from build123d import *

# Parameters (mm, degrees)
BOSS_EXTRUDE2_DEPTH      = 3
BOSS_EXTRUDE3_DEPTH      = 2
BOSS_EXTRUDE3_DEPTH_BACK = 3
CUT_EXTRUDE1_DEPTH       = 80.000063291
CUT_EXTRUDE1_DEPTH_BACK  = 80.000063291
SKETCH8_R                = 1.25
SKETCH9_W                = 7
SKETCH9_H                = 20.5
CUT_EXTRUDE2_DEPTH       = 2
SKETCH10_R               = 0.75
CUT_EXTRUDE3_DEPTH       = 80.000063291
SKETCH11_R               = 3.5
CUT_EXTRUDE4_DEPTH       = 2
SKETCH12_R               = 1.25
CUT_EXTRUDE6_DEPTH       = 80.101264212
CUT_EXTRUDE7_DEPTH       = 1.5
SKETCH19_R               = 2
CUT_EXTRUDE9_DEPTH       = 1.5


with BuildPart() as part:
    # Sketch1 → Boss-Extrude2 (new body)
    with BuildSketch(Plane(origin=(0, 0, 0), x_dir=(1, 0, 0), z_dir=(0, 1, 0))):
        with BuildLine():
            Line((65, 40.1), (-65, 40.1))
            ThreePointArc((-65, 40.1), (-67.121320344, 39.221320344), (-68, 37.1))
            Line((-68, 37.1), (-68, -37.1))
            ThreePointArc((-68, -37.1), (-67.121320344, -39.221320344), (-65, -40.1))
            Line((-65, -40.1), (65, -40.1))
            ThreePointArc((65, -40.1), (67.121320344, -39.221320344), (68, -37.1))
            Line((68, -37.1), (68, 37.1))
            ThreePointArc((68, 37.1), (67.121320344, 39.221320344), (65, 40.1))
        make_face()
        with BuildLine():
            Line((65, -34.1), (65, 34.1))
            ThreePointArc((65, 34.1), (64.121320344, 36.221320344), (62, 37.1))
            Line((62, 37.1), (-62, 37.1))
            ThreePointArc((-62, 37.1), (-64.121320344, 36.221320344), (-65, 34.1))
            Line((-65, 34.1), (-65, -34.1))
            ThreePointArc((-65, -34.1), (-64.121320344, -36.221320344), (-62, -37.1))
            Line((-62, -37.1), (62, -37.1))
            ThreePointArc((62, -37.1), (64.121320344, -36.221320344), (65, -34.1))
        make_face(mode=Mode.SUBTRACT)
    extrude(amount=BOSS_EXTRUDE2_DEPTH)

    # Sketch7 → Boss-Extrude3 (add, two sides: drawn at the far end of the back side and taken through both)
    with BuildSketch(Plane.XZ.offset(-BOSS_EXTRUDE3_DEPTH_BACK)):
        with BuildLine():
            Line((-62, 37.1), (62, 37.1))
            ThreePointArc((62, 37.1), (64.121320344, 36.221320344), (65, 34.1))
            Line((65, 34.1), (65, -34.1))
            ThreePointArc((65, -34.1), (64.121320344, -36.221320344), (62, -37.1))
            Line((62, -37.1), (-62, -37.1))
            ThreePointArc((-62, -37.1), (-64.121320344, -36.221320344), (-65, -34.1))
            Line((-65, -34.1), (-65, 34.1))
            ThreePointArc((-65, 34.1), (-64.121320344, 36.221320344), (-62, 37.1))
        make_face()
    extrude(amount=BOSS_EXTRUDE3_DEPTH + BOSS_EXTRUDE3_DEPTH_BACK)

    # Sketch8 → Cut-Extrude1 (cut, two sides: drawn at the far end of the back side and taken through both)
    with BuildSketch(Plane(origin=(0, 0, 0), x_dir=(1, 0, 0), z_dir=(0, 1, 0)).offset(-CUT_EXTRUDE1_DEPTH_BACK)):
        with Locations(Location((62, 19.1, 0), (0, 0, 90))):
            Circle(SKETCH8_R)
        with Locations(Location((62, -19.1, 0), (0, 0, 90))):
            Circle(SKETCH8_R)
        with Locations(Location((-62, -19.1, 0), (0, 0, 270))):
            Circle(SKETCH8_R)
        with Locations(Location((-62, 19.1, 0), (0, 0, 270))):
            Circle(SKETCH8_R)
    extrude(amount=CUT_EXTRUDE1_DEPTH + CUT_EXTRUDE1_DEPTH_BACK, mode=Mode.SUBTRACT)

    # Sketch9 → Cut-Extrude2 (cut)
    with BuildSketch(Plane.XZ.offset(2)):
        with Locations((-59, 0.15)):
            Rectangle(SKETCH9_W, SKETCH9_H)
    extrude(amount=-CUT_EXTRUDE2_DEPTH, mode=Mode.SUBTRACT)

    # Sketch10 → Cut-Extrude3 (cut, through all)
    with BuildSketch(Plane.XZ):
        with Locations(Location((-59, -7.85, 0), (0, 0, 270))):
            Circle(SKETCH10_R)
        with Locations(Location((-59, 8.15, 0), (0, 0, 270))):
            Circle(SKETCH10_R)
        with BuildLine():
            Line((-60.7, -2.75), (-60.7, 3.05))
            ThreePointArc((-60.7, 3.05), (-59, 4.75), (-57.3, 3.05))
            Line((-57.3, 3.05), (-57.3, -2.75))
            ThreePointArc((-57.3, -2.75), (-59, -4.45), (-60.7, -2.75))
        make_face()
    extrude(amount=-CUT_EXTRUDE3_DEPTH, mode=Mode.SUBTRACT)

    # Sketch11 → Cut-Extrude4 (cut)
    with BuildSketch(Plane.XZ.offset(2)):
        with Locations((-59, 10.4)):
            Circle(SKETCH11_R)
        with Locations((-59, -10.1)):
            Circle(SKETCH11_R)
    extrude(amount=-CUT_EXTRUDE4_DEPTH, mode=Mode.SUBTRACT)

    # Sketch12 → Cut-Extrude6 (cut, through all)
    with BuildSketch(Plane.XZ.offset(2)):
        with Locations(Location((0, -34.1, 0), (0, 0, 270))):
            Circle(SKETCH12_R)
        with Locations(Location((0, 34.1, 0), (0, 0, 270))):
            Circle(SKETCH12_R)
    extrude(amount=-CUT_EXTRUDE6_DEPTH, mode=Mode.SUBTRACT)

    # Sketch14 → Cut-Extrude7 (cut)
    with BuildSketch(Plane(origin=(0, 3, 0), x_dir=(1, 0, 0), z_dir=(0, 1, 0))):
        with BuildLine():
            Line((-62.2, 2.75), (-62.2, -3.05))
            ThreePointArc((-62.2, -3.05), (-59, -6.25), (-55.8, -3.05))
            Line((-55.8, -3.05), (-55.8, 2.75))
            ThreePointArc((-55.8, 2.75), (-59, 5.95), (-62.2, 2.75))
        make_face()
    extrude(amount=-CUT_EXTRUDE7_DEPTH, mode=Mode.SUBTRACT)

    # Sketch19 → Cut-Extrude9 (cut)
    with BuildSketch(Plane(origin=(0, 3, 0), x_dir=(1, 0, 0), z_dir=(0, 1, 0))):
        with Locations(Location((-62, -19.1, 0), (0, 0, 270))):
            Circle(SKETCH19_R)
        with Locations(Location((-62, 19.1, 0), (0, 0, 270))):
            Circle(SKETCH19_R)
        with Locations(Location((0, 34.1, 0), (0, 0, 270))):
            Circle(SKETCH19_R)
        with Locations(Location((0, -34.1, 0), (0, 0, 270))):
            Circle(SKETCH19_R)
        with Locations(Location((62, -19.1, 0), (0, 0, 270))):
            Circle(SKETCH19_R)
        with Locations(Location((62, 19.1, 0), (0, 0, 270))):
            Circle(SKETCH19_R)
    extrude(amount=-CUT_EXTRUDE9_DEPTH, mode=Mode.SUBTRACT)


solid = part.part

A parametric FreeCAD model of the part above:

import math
import FreeCAD as App
import Part
import Sketcher

V = App.Vector


def add_polygon(sketch, points):
    """Adds a closed chain of lines whose ends are joined by coincident constraints."""
    first, n = sketch.GeometryCount, len(points)
    for a, b in zip(points, points[1:] + points[:1]):
        sketch.addGeometry(Part.LineSegment(App.Vector(*a, 0), App.Vector(*b, 0)), False)
    for i in range(n):
        sketch.addConstraint(Sketcher.Constraint("Coincident", first + i, 2, first + (i + 1) % n, 1))

doc = App.newDocument("Part")
params = doc.addObject("Spreadsheet::Sheet", "Params")
for row, (alias, value) in enumerate([
    ("sketch1_radius", "3 mm"),
    ("sketch1_width", "130 mm"),
    ("sketch1_height", "74.2 mm"),
    ("pad1_length", "3 mm"),
    ("sketch2_radius", "3 mm"),
    ("sketch2_width", "124 mm"),
    ("sketch2_height", "68.2 mm"),
    ("pad2_length", "2 mm"),
    ("pad2_length2", "3 mm"),
    ("sketch3_diameter", "2.5 mm"),
    ("sketch4_width", "7 mm"),
    ("sketch4_height", "20.5 mm"),
    ("pocket2_length", "2 mm"),
    ("sketch5_diameter", "1.5 mm"),
    ("sketch5_radius", "1.7 mm"),
    ("sketch5_height", "5.8 mm"),
    ("sketch6_diameter", "7 mm"),
    ("pocket4_length", "2 mm"),
    ("sketch7_diameter", "2.5 mm"),
    ("sketch8_radius", "3.2 mm"),
    ("sketch8_height", "5.8 mm"),
    ("pocket6_length", "1.5 mm"),
    ("sketch9_diameter", "4 mm"),
    ("pocket7_length", "1.5 mm"),
], start=1):
    params.set(f"A{row}", alias)
    params.set(f"B{row}", "=" + value)
    params.setAlias(f"B{row}", alias)

body = doc.addObject("PartDesign::Body", "Body")

# Sketch on XZ plane
sketch1 = body.newObject("Sketcher::SketchObject", "Sketch")
sketch1.AttachmentSupport = (doc.getObject("XZ_Plane"), [""])
sketch1.MapMode = "FlatFace"
sketch1.addGeometry([
    Part.LineSegment(V(65, -40.1, 0), V(-65, -40.1, 0)),  # 0
    Part.ArcOfCircle(Part.Circle(V(-65, -37.1, 0), V(0, 0, 1), 3), math.radians(180), math.radians(270)),  # 1
    Part.LineSegment(V(-68, -37.1, 0), V(-68, 37.1, 0)),  # 2
    Part.ArcOfCircle(Part.Circle(V(-65, 37.1, 0), V(0, 0, 1), 3), math.radians(90), math.radians(180)),  # 3
    Part.LineSegment(V(-65, 40.1, 0), V(65, 40.1, 0)),  # 4
    Part.ArcOfCircle(Part.Circle(V(65, 37.1, 0), V(0, 0, 1), 3), math.radians(0), math.radians(90)),  # 5
    Part.LineSegment(V(68, 37.1, 0), V(68, -37.1, 0)),  # 6
    Part.ArcOfCircle(Part.Circle(V(65, -37.1, 0), V(0, 0, 1), 3), math.radians(-90), math.radians(0)),  # 7
    Part.LineSegment(V(65, -34.1, 0), V(65, 34.1, 0)),  # 8
    Part.ArcOfCircle(Part.Circle(V(62, 34.1, 0), V(0, 0, 1), 3), math.radians(0), math.radians(90)),  # 9
    Part.LineSegment(V(62, 37.1, 0), V(-62, 37.1, 0)),  # 10
    Part.ArcOfCircle(Part.Circle(V(-62, 34.1, 0), V(0, 0, 1), 3), math.radians(90), math.radians(180)),  # 11
    Part.LineSegment(V(-65, 34.1, 0), V(-65, -34.1, 0)),  # 12
    Part.ArcOfCircle(Part.Circle(V(-62, -34.1, 0), V(0, 0, 1), 3), math.radians(180), math.radians(270)),  # 13
    Part.LineSegment(V(-62, -37.1, 0), V(62, -37.1, 0)),  # 14
    Part.ArcOfCircle(Part.Circle(V(62, -34.1, 0), V(0, 0, 1), 3), math.radians(-90), math.radians(0)),  # 15
], False)
sketch1.addConstraint([
    Sketcher.Constraint("Tangent", 0, 2, 1, 2),
    Sketcher.Constraint("Tangent", 1, 1, 2, 1),
    Sketcher.Constraint("Tangent", 2, 2, 3, 2),
    Sketcher.Constraint("Tangent", 3, 1, 4, 1),
    Sketcher.Constraint("Tangent", 4, 2, 5, 2),
    Sketcher.Constraint("Tangent", 5, 1, 6, 1),
    Sketcher.Constraint("Tangent", 6, 2, 7, 2),
    Sketcher.Constraint("Tangent", 7, 1, 0, 1),
    Sketcher.Constraint("Tangent", 8, 2, 9, 1),
    Sketcher.Constraint("Tangent", 9, 2, 10, 1),
    Sketcher.Constraint("Tangent", 10, 2, 11, 1),
    Sketcher.Constraint("Tangent", 11, 2, 12, 1),
    Sketcher.Constraint("Tangent", 12, 2, 13, 1),
    Sketcher.Constraint("Tangent", 13, 2, 14, 1),
    Sketcher.Constraint("Tangent", 14, 2, 15, 1),
    Sketcher.Constraint("Tangent", 15, 2, 8, 1),
    Sketcher.Constraint("Horizontal", 0),
    Sketcher.Constraint("Vertical", 2),
    Sketcher.Constraint("Horizontal", 4),
    Sketcher.Constraint("Vertical", 6),
    Sketcher.Constraint("Vertical", 8),
    Sketcher.Constraint("Horizontal", 10),
    Sketcher.Constraint("Vertical", 12),
    Sketcher.Constraint("Horizontal", 14),
    Sketcher.Constraint("Equal", 1, 3),
    Sketcher.Constraint("Equal", 3, 5),
    Sketcher.Constraint("Equal", 5, 7),
    Sketcher.Constraint("Equal", 7, 9),
    Sketcher.Constraint("Equal", 9, 11),
    Sketcher.Constraint("Equal", 11, 13),
    Sketcher.Constraint("Equal", 13, 15),
    Sketcher.Constraint("Symmetric", 1, 3, 5, 3, -1, 1),
    Sketcher.Constraint("Symmetric", 9, 3, 13, 3, -1, 1),
    Sketcher.Constraint("Horizontal", 5, 1, 9, 2),
    Sketcher.Constraint("Vertical", 7, 1, 8, 2),
    Sketcher.Constraint("Radius", 1, 3.0),
    Sketcher.Constraint("DistanceX", 0, 2, 0, 1, 130.0),
    Sketcher.Constraint("DistanceY", 2, 1, 2, 2, 74.2),
])
sketch1.setExpression("Constraints[35]", "Params.sketch1_radius")
sketch1.setExpression("Constraints[36]", "Params.sketch1_width")
sketch1.setExpression("Constraints[37]", "Params.sketch1_height")
pad1 = body.newObject("PartDesign::Pad", "Pad")
pad1.Profile = sketch1
pad1.setExpression("Length", "Params.pad1_length")
pad1.Reversed = True

# Sketch on XZ plane
sketch2 = body.newObject("Sketcher::SketchObject", "Sketch001")
sketch2.AttachmentSupport = (doc.getObject("XZ_Plane"), [""])
sketch2.MapMode = "FlatFace"
sketch2.addGeometry([
    Part.LineSegment(V(62, 37.1, 0), V(-62, 37.1, 0)),  # 0
    Part.ArcOfCircle(Part.Circle(V(-62, 34.1, 0), V(0, 0, 1), 3), math.radians(90), math.radians(180)),  # 1
    Part.LineSegment(V(-65, 34.1, 0), V(-65, -34.1, 0)),  # 2
    Part.ArcOfCircle(Part.Circle(V(-62, -34.1, 0), V(0, 0, 1), 3), math.radians(180), math.radians(270)),  # 3
    Part.LineSegment(V(-62, -37.1, 0), V(62, -37.1, 0)),  # 4
    Part.ArcOfCircle(Part.Circle(V(62, -34.1, 0), V(0, 0, 1), 3), math.radians(-90), math.radians(0)),  # 5
    Part.LineSegment(V(65, -34.1, 0), V(65, 34.1, 0)),  # 6
    Part.ArcOfCircle(Part.Circle(V(62, 34.1, 0), V(0, 0, 1), 3), math.radians(0), math.radians(90)),  # 7
], False)
sketch2.addConstraint([
    Sketcher.Constraint("Tangent", 0, 2, 1, 1),
    Sketcher.Constraint("Tangent", 1, 2, 2, 1),
    Sketcher.Constraint("Tangent", 2, 2, 3, 1),
    Sketcher.Constraint("Tangent", 3, 2, 4, 1),
    Sketcher.Constraint("Tangent", 4, 2, 5, 1),
    Sketcher.Constraint("Tangent", 5, 2, 6, 1),
    Sketcher.Constraint("Tangent", 6, 2, 7, 1),
    Sketcher.Constraint("Tangent", 7, 2, 0, 1),
    Sketcher.Constraint("Horizontal", 0),
    Sketcher.Constraint("Vertical", 2),
    Sketcher.Constraint("Horizontal", 4),
    Sketcher.Constraint("Vertical", 6),
    Sketcher.Constraint("Equal", 1, 3),
    Sketcher.Constraint("Equal", 3, 5),
    Sketcher.Constraint("Equal", 5, 7),
    Sketcher.Constraint("Symmetric", 1, 3, 5, 3, -1, 1),
    Sketcher.Constraint("Radius", 1, 3.0),
    Sketcher.Constraint("DistanceX", 0, 2, 0, 1, 124.0),
    Sketcher.Constraint("DistanceY", 2, 2, 2, 1, 68.2),
])
sketch2.setExpression("Constraints[16]", "Params.sketch2_radius")
sketch2.setExpression("Constraints[17]", "Params.sketch2_width")
sketch2.setExpression("Constraints[18]", "Params.sketch2_height")
pad2 = body.newObject("PartDesign::Pad", "Pad001")
pad2.Profile = sketch2
pad2.Type = "TwoLengths"
pad2.setExpression("Length", "Params.pad2_length")
pad2.setExpression("Length2", "Params.pad2_length2")

# Sketch on XZ plane
sketch3 = body.newObject("Sketcher::SketchObject", "Sketch002")
sketch3.AttachmentSupport = (doc.getObject("XZ_Plane"), [""])
sketch3.MapMode = "FlatFace"
sketch3.addGeometry([
    Part.Circle(V(62, -19.1, 0), V(0, 0, 1), 1.2),
    Part.Circle(V(62, 19.1, 0), V(0, 0, 1), 1.2),
    Part.Circle(V(-62, 19.1, 0), V(0, 0, 1), 1.2),
    Part.Circle(V(-62, -19.1, 0), V(0, 0, 1), 1.2),
], False)
sketch3.addConstraint([
    Sketcher.Constraint("Equal", 0, 1),
    Sketcher.Constraint("Equal", 1, 2),
    Sketcher.Constraint("Equal", 2, 3),
    Sketcher.Constraint("Symmetric", 0, 3, 2, 3, -1, 1),
    Sketcher.Constraint("Symmetric", 1, 3, 3, 3, -1, 1),
    Sketcher.Constraint("Symmetric", 1, 3, 2, 3, -2),
    Sketcher.Constraint("Diameter", 0, 2.5),
    Sketcher.Constraint("DistanceX", -1, 1, 0, 3, 62.0),
    Sketcher.Constraint("DistanceY", 0, 3, -1, 1, 19.1),
])
sketch3.setExpression("Constraints[6]", "Params.sketch3_diameter")
pocket1 = body.newObject("PartDesign::Pocket", "Pocket")
pocket1.Profile = sketch3
pocket1.Type = "ThroughAll"
pocket1.Midplane = True

# Sketch on XZ plane
sketch4 = body.newObject("Sketcher::SketchObject", "Sketch003")
sketch4.AttachmentSupport = (doc.getObject("XZ_Plane"), [""])
sketch4.MapMode = "FlatFace"
sketch4.AttachmentOffset = App.Placement(V(0, 0, 2), App.Rotation())
add_polygon(sketch4, [(-62, 10), (-62, -10), (-56, -10), (-56, 10)])  # lines 0-3
sketch4.addConstraint([
    Sketcher.Constraint("Vertical", 0),
    Sketcher.Constraint("Horizontal", 1),
    Sketcher.Constraint("Vertical", 2),
    Sketcher.Constraint("Horizontal", 3),
    Sketcher.Constraint("DistanceX", 1, 1, 1, 2, 7.0),
    Sketcher.Constraint("DistanceY", 0, 2, 0, 1, 20.5),
    Sketcher.Constraint("DistanceX", 0, 2, -1, 1, 62.5),
    Sketcher.Constraint("DistanceY", 0, 2, -1, 1, 10.1),
])
sketch4.setExpression("Constraints[8]", "Params.sketch4_width")
sketch4.setExpression("Constraints[9]", "Params.sketch4_height")
pocket2 = body.newObject("PartDesign::Pocket", "Pocket001")
pocket2.Profile = sketch4
pocket2.setExpression("Length", "Params.pocket2_length")

# Sketch on XZ plane
sketch5 = body.newObject("Sketcher::SketchObject", "Sketch004")
sketch5.AttachmentSupport = (doc.getObject("XZ_Plane"), [""])
sketch5.MapMode = "FlatFace"
sketch5.addGeometry([
    Part.Circle(V(-59, -7.8, 0), V(0, 0, 1), 0.8),  # 0
    Part.Circle(V(-59, 8.2, 0), V(0, 0, 1), 0.8),  # 1
    Part.LineSegment(V(-60.7, 3, 0), V(-60.7, -2.8, 0)),  # 2
    Part.ArcOfCircle(Part.Circle(V(-59, -2.8, 0), V(0, 0, 1), 1.7), math.radians(180), math.radians(360)),  # 3
    Part.LineSegment(V(-57.3, -2.8, 0), V(-57.3, 3, 0)),  # 4
    Part.ArcOfCircle(Part.Circle(V(-59, 3, 0), V(0, 0, 1), 1.7), math.radians(0), math.radians(180)),  # 5
], False)
sketch5.addConstraint([
    Sketcher.Constraint("Tangent", 2, 2, 3, 1),
    Sketcher.Constraint("Tangent", 3, 2, 4, 1),
    Sketcher.Constraint("Tangent", 4, 2, 5, 1),
    Sketcher.Constraint("Tangent", 5, 2, 2, 1),
    Sketcher.Constraint("Vertical", 2),
    Sketcher.Constraint("Vertical", 4),
    Sketcher.Constraint("Equal", 0, 1),
    Sketcher.Constraint("Vertical", 0, 3, 1, 3),
    Sketcher.Constraint("Vertical", 1, 3, 3, 3),
    Sketcher.Constraint("Diameter", 0, 1.5),
    Sketcher.Constraint("Radius", 3, 1.7),
    Sketcher.Constraint("DistanceY", 2, 2, 2, 1, 5.8),
    Sketcher.Constraint("DistanceX", 0, 3, -1, 1, 59.0),
    Sketcher.Constraint("DistanceY", 0, 3, 1, 3, 16.0),
    Sketcher.Constraint("DistanceY", 0, 3, 3, 3, 5.1),
    Sketcher.Constraint("DistanceY", 0, 3, -1, 1, 7.85),
])
sketch5.setExpression("Constraints[9]", "Params.sketch5_diameter")
sketch5.setExpression("Constraints[10]", "Params.sketch5_radius")
sketch5.setExpression("Constraints[11]", "Params.sketch5_height")
pocket3 = body.newObject("PartDesign::Pocket", "Pocket002")
pocket3.Profile = sketch5
pocket3.Type = "ThroughAll"

# Sketch on XZ plane
sketch6 = body.newObject("Sketcher::SketchObject", "Sketch005")
sketch6.AttachmentSupport = (doc.getObject("XZ_Plane"), [""])
sketch6.MapMode = "FlatFace"
sketch6.AttachmentOffset = App.Placement(V(0, 0, 2), App.Rotation())
sketch6.addGeometry([
    Part.Circle(V(-59, 10.4, 0), V(0, 0, 1), 3.5),
    Part.Circle(V(-59, -10.1, 0), V(0, 0, 1), 3.5),
], False)
sketch6.addConstraint([
    Sketcher.Constraint("Equal", 0, 1),
    Sketcher.Constraint("Vertical", 0, 3, 1, 3),
    Sketcher.Constraint("Diameter", 0, 7.0),
    Sketcher.Constraint("DistanceX", 0, 3, -1, 1, 59.0),
    Sketcher.Constraint("DistanceY", -1, 1, 0, 3, 10.4),
    Sketcher.Constraint("DistanceY", 1, 3, -1, 1, 10.1),
])
sketch6.setExpression("Constraints[2]", "Params.sketch6_diameter")
pocket4 = body.newObject("PartDesign::Pocket", "Pocket003")
pocket4.Profile = sketch6
pocket4.setExpression("Length", "Params.pocket4_length")

# Sketch on XZ plane
sketch7 = body.newObject("Sketcher::SketchObject", "Sketch006")
sketch7.AttachmentSupport = (doc.getObject("XZ_Plane"), [""])
sketch7.MapMode = "FlatFace"
sketch7.AttachmentOffset = App.Placement(V(0, 0, 2), App.Rotation())
sketch7.addGeometry([
    Part.Circle(V(0, -34.1, 0), V(0, 0, 1), 1.2),
    Part.Circle(V(0, 34.1, 0), V(0, 0, 1), 1.2),
], False)
sketch7.addConstraint([
    Sketcher.Constraint("Equal", 0, 1),
    Sketcher.Constraint("Symmetric", 0, 3, 1, 3, -1, 1),
    Sketcher.Constraint("PointOnObject", 0, 3, -2),
    Sketcher.Constraint("Diameter", 0, 2.5),
    Sketcher.Constraint("DistanceY", 0, 3, -1, 1, 34.1),
])
sketch7.setExpression("Constraints[3]", "Params.sketch7_diameter")
pocket5 = body.newObject("PartDesign::Pocket", "Pocket004")
pocket5.Profile = sketch7
pocket5.Type = "ThroughAll"

# Sketch on XZ plane
sketch8 = body.newObject("Sketcher::SketchObject", "Sketch007")
sketch8.AttachmentSupport = (doc.getObject("XZ_Plane"), [""])
sketch8.MapMode = "FlatFace"
sketch8.AttachmentOffset = App.Placement(V(0, 0, -3), App.Rotation())
sketch8.addGeometry([
    Part.LineSegment(V(-62.2, -2.8, 0), V(-62.2, 3, 0)),
    Part.ArcOfCircle(Part.Circle(V(-59, 3, 0), V(0, 0, 1), 3.2), math.radians(0), math.radians(180)),
    Part.LineSegment(V(-55.8, 3, 0), V(-55.8, -2.8, 0)),
    Part.ArcOfCircle(Part.Circle(V(-59, -2.8, 0), V(0, 0, 1), 3.2), math.radians(180), math.radians(360)),
], False)
sketch8.addConstraint([
    Sketcher.Constraint("Tangent", 0, 2, 1, 2),
    Sketcher.Constraint("Tangent", 1, 1, 2, 1),
    Sketcher.Constraint("Tangent", 2, 2, 3, 2),
    Sketcher.Constraint("Tangent", 3, 1, 0, 1),
    Sketcher.Constraint("Vertical", 0),
    Sketcher.Constraint("Vertical", 2),
    Sketcher.Constraint("Radius", 1, 3.2),
    Sketcher.Constraint("DistanceY", 0, 1, 0, 2, 5.8),
    Sketcher.Constraint("DistanceX", 1, 3, -1, 1, 59.0),
    Sketcher.Constraint("DistanceY", -1, 1, 1, 3, 3.05),
])
sketch8.setExpression("Constraints[6]", "Params.sketch8_radius")
sketch8.setExpression("Constraints[7]", "Params.sketch8_height")
pocket6 = body.newObject("PartDesign::Pocket", "Pocket005")
pocket6.Profile = sketch8
pocket6.setExpression("Length", "Params.pocket6_length")
pocket6.Reversed = True

# Sketch on XZ plane
sketch9 = body.newObject("Sketcher::SketchObject", "Sketch008")
sketch9.AttachmentSupport = (doc.getObject("XZ_Plane"), [""])
sketch9.MapMode = "FlatFace"
sketch9.AttachmentOffset = App.Placement(V(0, 0, -3), App.Rotation())
sketch9.addGeometry([
    Part.Circle(V(-62, 19.1, 0), V(0, 0, 1), 2),  # 0
    Part.Circle(V(-62, -19.1, 0), V(0, 0, 1), 2),  # 1
    Part.Circle(V(0, -34.1, 0), V(0, 0, 1), 2),  # 2
    Part.Circle(V(0, 34.1, 0), V(0, 0, 1), 2),  # 3
    Part.Circle(V(62, 19.1, 0), V(0, 0, 1), 2),  # 4
    Part.Circle(V(62, -19.1, 0), V(0, 0, 1), 2),  # 5
], False)
sketch9.addConstraint([
    Sketcher.Constraint("Equal", 0, 1),
    Sketcher.Constraint("Equal", 1, 2),
    Sketcher.Constraint("Equal", 2, 3),
    Sketcher.Constraint("Equal", 3, 4),
    Sketcher.Constraint("Equal", 4, 5),
    Sketcher.Constraint("Symmetric", 2, 3, 3, 3, -1, 1),
    Sketcher.Constraint("Symmetric", 1, 3, 4, 3, -1, 1),
    Sketcher.Constraint("Symmetric", 0, 3, 5, 3, -1, 1),
    Sketcher.Constraint("Symmetric", 0, 3, 4, 3, -2),
    Sketcher.Constraint("PointOnObject", 2, 3, -2),
    Sketcher.Constraint("Diameter", 0, 4.0),
    Sketcher.Constraint("DistanceX", 0, 3, -1, 1, 62.0),
    Sketcher.Constraint("DistanceY", 2, 3, 1, 3, 15.0),
    Sketcher.Constraint("DistanceY", -1, 1, 0, 3, 19.1),
])
sketch9.setExpression("Constraints[10]", "Params.sketch9_diameter")
pocket7 = body.newObject("PartDesign::Pocket", "Pocket006")
pocket7.Profile = sketch9
pocket7.setExpression("Length", "Params.pocket7_length")
pocket7.Reversed = True

doc.recompute()
